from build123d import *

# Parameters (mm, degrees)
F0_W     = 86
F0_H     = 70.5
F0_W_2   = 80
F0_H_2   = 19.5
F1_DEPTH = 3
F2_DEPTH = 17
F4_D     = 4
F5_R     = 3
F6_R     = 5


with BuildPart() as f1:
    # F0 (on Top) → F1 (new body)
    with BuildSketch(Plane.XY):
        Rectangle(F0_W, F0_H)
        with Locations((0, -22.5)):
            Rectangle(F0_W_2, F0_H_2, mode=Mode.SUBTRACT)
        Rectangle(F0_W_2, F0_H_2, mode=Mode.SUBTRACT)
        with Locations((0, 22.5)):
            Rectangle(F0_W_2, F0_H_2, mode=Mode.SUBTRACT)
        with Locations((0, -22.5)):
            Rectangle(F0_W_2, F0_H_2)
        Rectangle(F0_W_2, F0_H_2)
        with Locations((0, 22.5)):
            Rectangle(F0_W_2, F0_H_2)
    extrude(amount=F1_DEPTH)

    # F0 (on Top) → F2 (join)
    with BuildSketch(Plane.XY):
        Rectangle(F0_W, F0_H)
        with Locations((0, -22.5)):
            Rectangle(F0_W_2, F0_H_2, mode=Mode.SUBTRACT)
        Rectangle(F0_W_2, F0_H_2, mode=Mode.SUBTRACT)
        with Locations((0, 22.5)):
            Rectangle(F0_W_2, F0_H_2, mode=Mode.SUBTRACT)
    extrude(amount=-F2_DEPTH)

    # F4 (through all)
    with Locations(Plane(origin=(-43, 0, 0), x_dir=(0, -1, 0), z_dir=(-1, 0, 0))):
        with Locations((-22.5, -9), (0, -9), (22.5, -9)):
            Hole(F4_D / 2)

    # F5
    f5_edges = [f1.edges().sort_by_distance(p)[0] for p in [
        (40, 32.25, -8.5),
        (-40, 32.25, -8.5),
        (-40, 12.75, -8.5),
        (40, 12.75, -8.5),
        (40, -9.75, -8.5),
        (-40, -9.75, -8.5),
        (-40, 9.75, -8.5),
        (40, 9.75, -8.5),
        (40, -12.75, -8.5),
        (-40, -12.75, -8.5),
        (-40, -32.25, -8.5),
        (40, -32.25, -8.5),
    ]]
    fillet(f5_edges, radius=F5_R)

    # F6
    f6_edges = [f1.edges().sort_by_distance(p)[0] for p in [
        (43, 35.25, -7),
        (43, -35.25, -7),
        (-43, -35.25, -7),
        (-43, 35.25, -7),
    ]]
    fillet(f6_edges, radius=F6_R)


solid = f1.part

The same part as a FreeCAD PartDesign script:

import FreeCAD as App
import Part
import Sketcher
from FreeCAD import Vector
Q = App.Units.Quantity


def edges_at(feature, points):
    """Names of the edges that pass closest to the given points."""
    edges = feature.Shape.Edges
    near = lambda p: min(range(len(edges)), key=lambda i: edges[i].distToShape(Part.Vertex(*p))[0])
    return sorted({f"Edge{near(p) + 1}" for p in points})

doc = App.newDocument("Part")
body = doc.addObject("PartDesign::Body", "Body")

sketch1 = body.newObject("Sketcher::SketchObject", "Sketch")
sketch1.AttachmentSupport = (doc.getObject("XY_Plane"), [""])
sketch1.MapMode = "FlatFace"
sketch1.addGeometry([
    Part.LineSegment(Vector(-43, 35, 0), Vector(-43, -35, 0)),
    Part.LineSegment(Vector(-43, -35, 0), Vector(43, -35, 0)),
    Part.LineSegment(Vector(43, -35, 0), Vector(43, 35, 0)),
    Part.LineSegment(Vector(43, 35, 0), Vector(-43, 35, 0)),
], False)
sketch1.addConstraint([
    Sketcher.Constraint("Coincident", 0, 2, 1, 1),
    Sketcher.Constraint("Coincident", 1, 2, 2, 1),
    Sketcher.Constraint("Coincident", 2, 2, 3, 1),
    Sketcher.Constraint("Coincident", 3, 2, 0, 1),
    Sketcher.Constraint("Vertical", 0),
    Sketcher.Constraint("Horizontal", 1),
    Sketcher.Constraint("Vertical", 2),
    Sketcher.Constraint("Horizontal", 3),
    Sketcher.Constraint("Symmetric", 0, 2, 2, 2, -1, 1),
    Sketcher.Constraint("DistanceX", 1, 1, 1, 2, Q("86 mm")),
    Sketcher.Constraint("DistanceY", 0, 2, 0, 1, Q("70.5 mm")),
])
pad1 = body.newObject("PartDesign::Pad", "Pad")
pad1.Profile = sketch1
pad1.Length = 3

sketch2 = body.newObject("Sketcher::SketchObject", "Sketch001")
sketch2.AttachmentSupport = (doc.getObject("XY_Plane"), [""])
sketch2.MapMode = "FlatFace"
sketch2.addGeometry([
    Part.LineSegment(Vector(-43, 35, 0), Vector(-43, -35, 0)),
    Part.LineSegment(Vector(-43, -35, 0), Vector(43, -35, 0)),
    Part.LineSegment(Vector(43, -35, 0), Vector(43, 35, 0)),
    Part.LineSegment(Vector(43, 35, 0), Vector(-43, 35, 0)),
    Part.LineSegment(Vector(40, -32, 0), Vector(-40, -32, 0)),
    Part.LineSegment(Vector(-40, -32, 0), Vector(-40, -13, 0)),
    Part.LineSegment(Vector(-40, -13, 0), Vector(40, -13, 0)),
    Part.LineSegment(Vector(40, -13, 0), Vector(40, -32, 0)),
    Part.LineSegment(Vector(40, -10, 0), Vector(-40, -10, 0)),
    Part.LineSegment(Vector(-40, -10, 0), Vector(-40, 10, 0)),
    Part.LineSegment(Vector(-40, 10, 0), Vector(40, 10, 0)),
    Part.LineSegment(Vector(40, 10, 0), Vector(40, -10, 0)),
    Part.LineSegment(Vector(40, 13, 0), Vector(-40, 13, 0)),
    Part.LineSegment(Vector(-40, 13, 0), Vector(-40, 32, 0)),
    Part.LineSegment(Vector(-40, 32, 0), Vector(40, 32, 0)),
    Part.LineSegment(Vector(40, 32, 0), Vector(40, 13, 0)),
], False)
sketch2.addConstraint([
    Sketcher.Constraint("Coincident", 0, 2, 1, 1),
    Sketcher.Constraint("Coincident", 1, 2, 2, 1),
    Sketcher.Constraint("Coincident", 2, 2, 3, 1),
    Sketcher.Constraint("Coincident", 3, 2, 0, 1),
    Sketcher.Constraint("Coincident", 4, 2, 5, 1),
    Sketcher.Constraint("Coincident", 5, 2, 6, 1),
    Sketcher.Constraint("Coincident", 6, 2, 7, 1),
    Sketcher.Constraint("Coincident", 7, 2, 4, 1),
    Sketcher.Constraint("Coincident", 8, 2, 9, 1),
    Sketcher.Constraint("Coincident", 9, 2, 10, 1),
    Sketcher.Constraint("Coincident", 10, 2, 11, 1),
    Sketcher.Constraint("Coincident", 11, 2, 8, 1),
    Sketcher.Constraint("Coincident", 12, 2, 13, 1),
    Sketcher.Constraint("Coincident", 13, 2, 14, 1),
    Sketcher.Constraint("Coincident", 14, 2, 15, 1),
    Sketcher.Constraint("Coincident", 15, 2, 12, 1),
    Sketcher.Constraint("Vertical", 0),
    Sketcher.Constraint("Horizontal", 1),
    Sketcher.Constraint("Vertical", 2),
    Sketcher.Constraint("Horizontal", 3),
    Sketcher.Constraint("Horizontal", 4),
    Sketcher.Constraint("Vertical", 5),
    Sketcher.Constraint("Horizontal", 6),
    Sketcher.Constraint("Vertical", 7),
    Sketcher.Constraint("Horizontal", 8),
    Sketcher.Constraint("Vertical", 9),
    Sketcher.Constraint("Horizontal", 10),
    Sketcher.Constraint("Vertical", 11),
    Sketcher.Constraint("Horizontal", 12),
    Sketcher.Constraint("Vertical", 13),
    Sketcher.Constraint("Horizontal", 14),
    Sketcher.Constraint("Vertical", 15),
    Sketcher.Constraint("Symmetric", 0, 2, 2, 2, -1, 1),
    Sketcher.Constraint("Symmetric", 8, 2, 10, 2, -1, 1),
    Sketcher.Constraint("Symmetric", 6, 2, 12, 2, -1, 1),
    Sketcher.Constraint("Symmetric", 4, 2, 14, 2, -1, 1),
    Sketcher.Constraint("Vertical", 5, 2, 8, 2),
    Sketcher.Constraint("Vertical", 7, 2, 10, 2),
    Sketcher.Constraint("Equal", 7, 9),
    Sketcher.Constraint("DistanceX", 1, 1, 1, 2, Q("86 mm")),
    Sketcher.Constraint("DistanceX", 4, 2, 4, 1, Q("80 mm")),
    Sketcher.Constraint("DistanceY", 0, 2, 0, 1, Q("70.5 mm")),
    Sketcher.Constraint("DistanceY", 5, 1, 5, 2, Q("19.5 mm")),
    Sketcher.Constraint("DistanceY", 0, 2, 4, 2, Q("3 mm")),
])
pad2 = body.newObject("PartDesign::Pad", "Pad001")
pad2.Profile = sketch2
pad2.Length = 17
pad2.Reversed = True

sketch3 = body.newObject("Sketcher::SketchObject", "Sketch002")
sketch3.AttachmentSupport = (doc.getObject("YZ_Plane"), [""])
sketch3.MapMode = "FlatFace"
sketch3.AttachmentOffset = App.Placement(Vector(0, 0, -43), App.Rotation())
sketch3.addGeometry([
    Part.Circle(Vector(22.5, -9, 0), Vector(0, 0, 1), 2),
    Part.Circle(Vector(0, -9, 0), Vector(0, 0, 1), 2),
    Part.Circle(Vector(-22.5, -9, 0), Vector(0, 0, 1), 2),
], False)
sketch3.addConstraint([
    Sketcher.Constraint("Equal", 0, 1),
    Sketcher.Constraint("Equal", 1, 2),
    Sketcher.Constraint("Symmetric", 0, 3, 2, 3, -2),
    Sketcher.Constraint("PointOnObject", 1, 3, -2),
    Sketcher.Constraint("Horizontal", 0, 3, 1, 3),
    Sketcher.Constraint("Diameter", 0, Q("4 mm")),
    Sketcher.Constraint("DistanceY", 0, 3, -1, 1, Q("9 mm")),
    Sketcher.Constraint("DistanceX", 2, 3, 0, 3, Q("45 mm")),
])
doc.recompute()
hole = body.newObject("PartDesign::Hole", "Hole")
hole.Profile = sketch3
hole.ThreadType = "None"
hole.Diameter = 4
hole.DepthType = "ThroughAll"
hole.Reversed = True
doc.recompute()

fillet = body.newObject("PartDesign::Fillet", "Fillet")
fillet.Base = (hole, edges_at(hole, [
    (40, 32.25, -8.5),
    (-40, 32.25, -8.5),
    (-40, 12.75, -8.5),
    (40, 12.75, -8.5),
    (40, -9.75, -8.5),
    (-40, -9.75, -8.5),
    (-40, 9.75, -8.5),
    (40, 9.75, -8.5),
    (40, -12.75, -8.5),
    (-40, -12.75, -8.5),
    (-40, -32.25, -8.5),
    (40, -32.25, -8.5),
]))
fillet.Radius = 3
doc.recompute()

fillet2 = body.newObject("PartDesign::Fillet", "Fillet001")
fillet2.Base = (fillet, edges_at(fillet, [
    (43, 35.25, -7),
    (43, -35.25, -7),
    (-43, -35.25, -7),
    (-43, 35.25, -7),
]))
fillet2.Radius = 5

doc.recompute()
